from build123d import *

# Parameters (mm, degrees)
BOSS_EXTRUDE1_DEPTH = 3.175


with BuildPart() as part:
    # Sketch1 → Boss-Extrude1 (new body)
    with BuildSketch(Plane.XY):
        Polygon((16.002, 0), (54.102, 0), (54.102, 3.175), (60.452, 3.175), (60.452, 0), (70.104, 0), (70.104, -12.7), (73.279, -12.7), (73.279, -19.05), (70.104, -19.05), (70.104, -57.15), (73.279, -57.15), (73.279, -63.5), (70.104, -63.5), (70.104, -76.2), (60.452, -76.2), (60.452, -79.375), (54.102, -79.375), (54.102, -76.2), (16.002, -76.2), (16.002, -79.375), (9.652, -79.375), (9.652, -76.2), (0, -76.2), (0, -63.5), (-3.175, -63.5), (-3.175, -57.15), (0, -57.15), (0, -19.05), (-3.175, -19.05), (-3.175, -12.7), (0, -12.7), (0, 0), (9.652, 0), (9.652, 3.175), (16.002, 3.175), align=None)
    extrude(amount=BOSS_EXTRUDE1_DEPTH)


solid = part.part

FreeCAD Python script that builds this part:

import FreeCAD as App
import Part
import Sketcher
Q = App.Units.Quantity


def add_polygon(sketch, points):
    """Adds a closed chain of lines whose ends are joined by coincident constraints."""
    first, n = sketch.GeometryCount, len(points)
    for a, b in zip(points, points[1:] + points[:1]):
        sketch.addGeometry(Part.LineSegment(App.Vector(*a, 0), App.Vector(*b, 0)), False)
    for i in range(n):
        sketch.addConstraint(Sketcher.Constraint("Coincident", first + i, 2, first + (i + 1) % n, 1))

doc = App.newDocument("Part")
body = doc.addObject("PartDesign::Body", "Body")

sketch1 = body.newObject("Sketcher::SketchObject", "Sketch")
sketch1.AttachmentSupport = (doc.getObject("XY_Plane"), [""])
sketch1.MapMode = "FlatFace"
add_polygon(sketch1, [(54.1, 0), (16, 0), (16, 3.2), (9.7, 3.2), (9.7, 0), (0, 0), (0, -12.7), (-3.2, -12.7), (-3.2, -19.1), (0, -19.1), (0, -57.1), (-3.2, -57.1), (-3.2, -63.5), (0, -63.5), (0, -76.2), (9.7, -76.2), (9.7, -79.4), (16, -79.4), (16, -76.2), (54.1, -76.2), (54.1, -79.4), (60.5, -79.4), (60.5, -76.2), (70.1, -76.2), (70.1, -63.5), (73.3, -63.5), (73.3, -57.1), (70.1, -57.1), (70.1, -19.1), (73.3, -19.1), (73.3, -12.7), (70.1, -12.7), (70.1, 0), (60.5, 0), (60.5, 3.2), (54.1, 3.2)])
sketch1.addConstraint(Sketcher.Constraint("Horizontal", 0))
sketch1.addConstraint(Sketcher.Constraint("Vertical", 1))
sketch1.addConstraint(Sketcher.Constraint("Horizontal", 2))
sketch1.addConstraint(Sketcher.Constraint("Vertical", 3))
sketch1.addConstraint(Sketcher.Constraint("Horizontal", 4))
sketch1.addConstraint(Sketcher.Constraint("Vertical", 5))
sketch1.addConstraint(Sketcher.Constraint("Horizontal", 6))
sketch1.addConstraint(Sketcher.Constraint("Vertical", 7))
sketch1.addConstraint(Sketcher.Constraint("Horizontal", 8))
sketch1.addConstraint(Sketcher.Constraint("Vertical", 9))
sketch1.addConstraint(Sketcher.Constraint("Horizontal", 10))
sketch1.addConstraint(Sketcher.Constraint("Vertical", 11))
sketch1.addConstraint(Sketcher.Constraint("Horizontal", 12))
sketch1.addConstraint(Sketcher.Constraint("Vertical", 13))
sketch1.addConstraint(Sketcher.Constraint("Horizontal", 14))
sketch1.addConstraint(Sketcher.Constraint("Vertical", 15))
sketch1.addConstraint(Sketcher.Constraint("Horizontal", 16))
sketch1.addConstraint(Sketcher.Constraint("Vertical", 17))
sketch1.addConstraint(Sketcher.Constraint("Horizontal", 18))
sketch1.addConstraint(Sketcher.Constraint("Vertical", 19))
sketch1.addConstraint(Sketcher.Constraint("Horizontal", 20))
sketch1.addConstraint(Sketcher.Constraint("Vertical", 21))
sketch1.addConstraint(Sketcher.Constraint("Horizontal", 22))
sketch1.addConstraint(Sketcher.Constraint("Vertical", 23))
sketch1.addConstraint(Sketcher.Constraint("Horizontal", 24))
sketch1.addConstraint(Sketcher.Constraint("Vertical", 25))
sketch1.addConstraint(Sketcher.Constraint("Horizontal", 26))
sketch1.addConstraint(Sketcher.Constraint("Vertical", 27))
sketch1.addConstraint(Sketcher.Constraint("Horizontal", 28))
sketch1.addConstraint(Sketcher.Constraint("Vertical", 29))
sketch1.addConstraint(Sketcher.Constraint("Horizontal", 30))
sketch1.addConstraint(Sketcher.Constraint("Vertical", 31))
sketch1.addConstraint(Sketcher.Constraint("Horizontal", 32))
sketch1.addConstraint(Sketcher.Constraint("Vertical", 33))
sketch1.addConstraint(Sketcher.Constraint("Horizontal", 34))
sketch1.addConstraint(Sketcher.Constraint("Vertical", 35))
sketch1.addConstraint(Sketcher.Constraint("Coincident", 4, 2, -1, 1))
sketch1.addConstraint(Sketcher.Constraint("PointOnObject", 0, 2, -1))
sketch1.addConstraint(Sketcher.Constraint("PointOnObject", 8, 2, -2))
sketch1.addConstraint(Sketcher.Constraint("PointOnObject", 12, 2, -2))
sketch1.addConstraint(Sketcher.Constraint("PointOnObject", 31, 2, -1))
sketch1.addConstraint(Sketcher.Constraint("Horizontal", 14, 2, 17, 2))
sketch1.addConstraint(Sketcher.Constraint("Horizontal", 16, 2, 19, 2))
sketch1.addConstraint(Sketcher.Constraint("Horizontal", 18, 2, 21, 2))
sketch1.addConstraint(Sketcher.Constraint("Horizontal", 12, 2, 23, 2))
sketch1.addConstraint(Sketcher.Constraint("Horizontal", 10, 2, 25, 2))
sketch1.addConstraint(Sketcher.Constraint("Horizontal", 8, 2, 27, 2))
sketch1.addConstraint(Sketcher.Constraint("Horizontal", 6, 2, 29, 2))
sketch1.addConstraint(Sketcher.Constraint("Horizontal", 2, 2, 33, 2))
sketch1.addConstraint(Sketcher.Constraint("Vertical", 7, 2, 10, 2))
sketch1.addConstraint(Sketcher.Constraint("Vertical", 3, 2, 14, 2))
sketch1.addConstraint(Sketcher.Constraint("Vertical", 1, 2, 16, 2))
sketch1.addConstraint(Sketcher.Constraint("Vertical", 23, 2, 26, 2))
sketch1.addConstraint(Sketcher.Constraint("Vertical", 25, 2, 28, 2))
sketch1.addConstraint(Sketcher.Constraint("Vertical", 27, 2, 30, 2))
sketch1.addConstraint(Sketcher.Constraint("Vertical", 21, 2, 32, 2))
sketch1.addConstraint(Sketcher.Constraint("Vertical", 19, 2, 34, 2))
sketch1.addConstraint(Sketcher.Constraint("Equal", 16, 20))
sketch1.addConstraint(Sketcher.Constraint("Equal", 14, 22))
sketch1.addConstraint(Sketcher.Constraint("Equal", 12, 24))
sketch1.addConstraint(Sketcher.Constraint("Equal", 30, 1))
sketch1.addConstraint(Sketcher.Constraint("Equal", 34, 7))
sketch1.addConstraint(Sketcher.Constraint("Equal", 18, 9))
sketch1.addConstraint(Sketcher.Constraint("Equal", 7, 11))
sketch1.addConstraint(Sketcher.Constraint("Equal", 5, 13))
sketch1.addConstraint(Sketcher.Constraint("Equal", 3, 15))
sketch1.addConstraint(Sketcher.Constraint("DistanceX", 0, 2, 0, 1, Q("1.5 in")))
sketch1.addConstraint(Sketcher.Constraint("DistanceY", 5, 2, 5, 1, Q("0.5 in")))
sketch1.addConstraint(Sketcher.Constraint("DistanceY", 13, 2, -1, 1, Q("3 in")))
sketch1.addConstraint(Sketcher.Constraint("DistanceX", 4, 2, 4, 1, Q("0.38 in")))
sketch1.addConstraint(Sketcher.Constraint("DistanceX", 6, 2, 6, 1, Q("0.125 in")))
pad1 = body.newObject("PartDesign::Pad", "Pad")
pad1.Profile = sketch1
pad1.Length = Q("0.125 in")

doc.recompute()
